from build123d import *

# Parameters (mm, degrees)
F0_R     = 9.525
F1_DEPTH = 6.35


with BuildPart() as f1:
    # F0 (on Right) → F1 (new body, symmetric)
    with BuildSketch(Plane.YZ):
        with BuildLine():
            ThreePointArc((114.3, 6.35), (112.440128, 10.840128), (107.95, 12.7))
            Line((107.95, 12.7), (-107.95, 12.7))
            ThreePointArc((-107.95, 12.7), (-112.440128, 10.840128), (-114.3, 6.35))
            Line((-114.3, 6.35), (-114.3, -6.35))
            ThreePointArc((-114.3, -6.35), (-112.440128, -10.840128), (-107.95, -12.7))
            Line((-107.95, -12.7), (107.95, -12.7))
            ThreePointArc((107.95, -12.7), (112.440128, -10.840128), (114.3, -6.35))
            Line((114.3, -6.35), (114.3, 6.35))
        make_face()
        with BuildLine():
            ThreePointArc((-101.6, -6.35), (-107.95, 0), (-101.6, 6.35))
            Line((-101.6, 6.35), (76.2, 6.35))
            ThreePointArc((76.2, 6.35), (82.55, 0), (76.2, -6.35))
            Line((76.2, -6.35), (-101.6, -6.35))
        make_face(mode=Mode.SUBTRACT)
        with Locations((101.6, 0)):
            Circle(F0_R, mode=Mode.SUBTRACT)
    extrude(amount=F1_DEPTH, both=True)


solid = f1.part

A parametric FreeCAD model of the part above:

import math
import FreeCAD as App
import Part
import Sketcher
Q = App.Units.Quantity

doc = App.newDocument("Part")
body = doc.addObject("PartDesign::Body", "Body")

sketch1 = doc.addObject("Sketcher::SketchObject", "Sketch")
body.addObject(sketch1)
sketch1.AttachmentSupport = (doc.YZ_Plane, [""])
sketch1.MapMode = "FlatFace"
sketch1.addGeometry([
    Part.ArcOfCircle(Part.Circle(App.Vector(108, 6, 0), App.Vector(0, 0, 1), 6), math.radians(0), math.radians(90)),
    Part.LineSegment(App.Vector(108, 13, 0), App.Vector(-108, 13, 0)),
    Part.ArcOfCircle(Part.Circle(App.Vector(-108, 6, 0), App.Vector(0, 0, 1), 6), math.radians(90), math.radians(180)),
    Part.LineSegment(App.Vector(-114, 6, 0), App.Vector(-114, -6, 0)),
    Part.ArcOfCircle(Part.Circle(App.Vector(-108, -6, 0), App.Vector(0, 0, 1), 6), math.radians(-180), math.radians(-90)),
    Part.LineSegment(App.Vector(-108, -13, 0), App.Vector(108, -13, 0)),
    Part.ArcOfCircle(Part.Circle(App.Vector(108, -6, 0), App.Vector(0, 0, 1), 6), math.radians(-90), math.radians(0)),
    Part.LineSegment(App.Vector(114, -6, 0), App.Vector(114, 6, 0)),
    Part.LineSegment(App.Vector(76, -6, 0), App.Vector(-102, -6, 0)),
    Part.ArcOfCircle(Part.Circle(App.Vector(-102, 0, 0), App.Vector(0, 0, 1), 6), math.radians(90), math.radians(270)),
    Part.LineSegment(App.Vector(-102, 6, 0), App.Vector(76, 6, 0)),
    Part.ArcOfCircle(Part.Circle(App.Vector(76, 0, 0), App.Vector(0, 0, 1), 6), math.radians(-90), math.radians(90)),
    Part.Circle(App.Vector(102, 0, 0), App.Vector(0, 0, 1), 10),
], False)
sketch1.addConstraint([
    Sketcher.Constraint("Tangent", 0, 2, 1, 1),
    Sketcher.Constraint("Tangent", 1, 2, 2, 1),
    Sketcher.Constraint("Tangent", 2, 2, 3, 1),
    Sketcher.Constraint("Tangent", 3, 2, 4, 1),
    Sketcher.Constraint("Tangent", 4, 2, 5, 1),
    Sketcher.Constraint("Tangent", 5, 2, 6, 1),
    Sketcher.Constraint("Tangent", 6, 2, 7, 1),
    Sketcher.Constraint("Tangent", 7, 2, 0, 1),
    Sketcher.Constraint("Tangent", 8, 2, 9, 2),
    Sketcher.Constraint("Tangent", 9, 1, 10, 1),
    Sketcher.Constraint("Tangent", 10, 2, 11, 2),
    Sketcher.Constraint("Tangent", 11, 1, 8, 1),
    Sketcher.Constraint("Horizontal", 1),
    Sketcher.Constraint("Vertical", 3),
    Sketcher.Constraint("Horizontal", 5),
    Sketcher.Constraint("Vertical", 7),
    Sketcher.Constraint("Horizontal", 8),
    Sketcher.Constraint("Horizontal", 10),
    Sketcher.Constraint("Equal", 0, 2),
    Sketcher.Constraint("Equal", 2, 4),
    Sketcher.Constraint("Equal", 4, 6),
    Sketcher.Constraint("Equal", 6, 9),
    Sketcher.Constraint("Symmetric", 0, 3, 4, 3, -1, 1),
    Sketcher.Constraint("Symmetric", 9, 3, 12, 3, -1, 1),
    Sketcher.Constraint("PointOnObject", 9, 3, -1),
    Sketcher.Constraint("Horizontal", 6, 2, 8, 2),
    Sketcher.Constraint("Diameter", 12, Q("0.75 in")),
    Sketcher.Constraint("DistanceX", 8, 2, 8, 1, Q("7 in")),
    Sketcher.Constraint("Radius", 0, Q("0.25 in")),
    Sketcher.Constraint("DistanceX", 1, 2, 1, 1, Q("8.5 in")),
    Sketcher.Constraint("DistanceX", 9, 3, -1, 1, Q("4 in")),
])
pad1 = doc.addObject("PartDesign::Pad", "Pad")
body.addObject(pad1)
pad1.Profile = sketch1
pad1.Length = Q("0.5 in")
pad1.Midplane = True

doc.recompute()
